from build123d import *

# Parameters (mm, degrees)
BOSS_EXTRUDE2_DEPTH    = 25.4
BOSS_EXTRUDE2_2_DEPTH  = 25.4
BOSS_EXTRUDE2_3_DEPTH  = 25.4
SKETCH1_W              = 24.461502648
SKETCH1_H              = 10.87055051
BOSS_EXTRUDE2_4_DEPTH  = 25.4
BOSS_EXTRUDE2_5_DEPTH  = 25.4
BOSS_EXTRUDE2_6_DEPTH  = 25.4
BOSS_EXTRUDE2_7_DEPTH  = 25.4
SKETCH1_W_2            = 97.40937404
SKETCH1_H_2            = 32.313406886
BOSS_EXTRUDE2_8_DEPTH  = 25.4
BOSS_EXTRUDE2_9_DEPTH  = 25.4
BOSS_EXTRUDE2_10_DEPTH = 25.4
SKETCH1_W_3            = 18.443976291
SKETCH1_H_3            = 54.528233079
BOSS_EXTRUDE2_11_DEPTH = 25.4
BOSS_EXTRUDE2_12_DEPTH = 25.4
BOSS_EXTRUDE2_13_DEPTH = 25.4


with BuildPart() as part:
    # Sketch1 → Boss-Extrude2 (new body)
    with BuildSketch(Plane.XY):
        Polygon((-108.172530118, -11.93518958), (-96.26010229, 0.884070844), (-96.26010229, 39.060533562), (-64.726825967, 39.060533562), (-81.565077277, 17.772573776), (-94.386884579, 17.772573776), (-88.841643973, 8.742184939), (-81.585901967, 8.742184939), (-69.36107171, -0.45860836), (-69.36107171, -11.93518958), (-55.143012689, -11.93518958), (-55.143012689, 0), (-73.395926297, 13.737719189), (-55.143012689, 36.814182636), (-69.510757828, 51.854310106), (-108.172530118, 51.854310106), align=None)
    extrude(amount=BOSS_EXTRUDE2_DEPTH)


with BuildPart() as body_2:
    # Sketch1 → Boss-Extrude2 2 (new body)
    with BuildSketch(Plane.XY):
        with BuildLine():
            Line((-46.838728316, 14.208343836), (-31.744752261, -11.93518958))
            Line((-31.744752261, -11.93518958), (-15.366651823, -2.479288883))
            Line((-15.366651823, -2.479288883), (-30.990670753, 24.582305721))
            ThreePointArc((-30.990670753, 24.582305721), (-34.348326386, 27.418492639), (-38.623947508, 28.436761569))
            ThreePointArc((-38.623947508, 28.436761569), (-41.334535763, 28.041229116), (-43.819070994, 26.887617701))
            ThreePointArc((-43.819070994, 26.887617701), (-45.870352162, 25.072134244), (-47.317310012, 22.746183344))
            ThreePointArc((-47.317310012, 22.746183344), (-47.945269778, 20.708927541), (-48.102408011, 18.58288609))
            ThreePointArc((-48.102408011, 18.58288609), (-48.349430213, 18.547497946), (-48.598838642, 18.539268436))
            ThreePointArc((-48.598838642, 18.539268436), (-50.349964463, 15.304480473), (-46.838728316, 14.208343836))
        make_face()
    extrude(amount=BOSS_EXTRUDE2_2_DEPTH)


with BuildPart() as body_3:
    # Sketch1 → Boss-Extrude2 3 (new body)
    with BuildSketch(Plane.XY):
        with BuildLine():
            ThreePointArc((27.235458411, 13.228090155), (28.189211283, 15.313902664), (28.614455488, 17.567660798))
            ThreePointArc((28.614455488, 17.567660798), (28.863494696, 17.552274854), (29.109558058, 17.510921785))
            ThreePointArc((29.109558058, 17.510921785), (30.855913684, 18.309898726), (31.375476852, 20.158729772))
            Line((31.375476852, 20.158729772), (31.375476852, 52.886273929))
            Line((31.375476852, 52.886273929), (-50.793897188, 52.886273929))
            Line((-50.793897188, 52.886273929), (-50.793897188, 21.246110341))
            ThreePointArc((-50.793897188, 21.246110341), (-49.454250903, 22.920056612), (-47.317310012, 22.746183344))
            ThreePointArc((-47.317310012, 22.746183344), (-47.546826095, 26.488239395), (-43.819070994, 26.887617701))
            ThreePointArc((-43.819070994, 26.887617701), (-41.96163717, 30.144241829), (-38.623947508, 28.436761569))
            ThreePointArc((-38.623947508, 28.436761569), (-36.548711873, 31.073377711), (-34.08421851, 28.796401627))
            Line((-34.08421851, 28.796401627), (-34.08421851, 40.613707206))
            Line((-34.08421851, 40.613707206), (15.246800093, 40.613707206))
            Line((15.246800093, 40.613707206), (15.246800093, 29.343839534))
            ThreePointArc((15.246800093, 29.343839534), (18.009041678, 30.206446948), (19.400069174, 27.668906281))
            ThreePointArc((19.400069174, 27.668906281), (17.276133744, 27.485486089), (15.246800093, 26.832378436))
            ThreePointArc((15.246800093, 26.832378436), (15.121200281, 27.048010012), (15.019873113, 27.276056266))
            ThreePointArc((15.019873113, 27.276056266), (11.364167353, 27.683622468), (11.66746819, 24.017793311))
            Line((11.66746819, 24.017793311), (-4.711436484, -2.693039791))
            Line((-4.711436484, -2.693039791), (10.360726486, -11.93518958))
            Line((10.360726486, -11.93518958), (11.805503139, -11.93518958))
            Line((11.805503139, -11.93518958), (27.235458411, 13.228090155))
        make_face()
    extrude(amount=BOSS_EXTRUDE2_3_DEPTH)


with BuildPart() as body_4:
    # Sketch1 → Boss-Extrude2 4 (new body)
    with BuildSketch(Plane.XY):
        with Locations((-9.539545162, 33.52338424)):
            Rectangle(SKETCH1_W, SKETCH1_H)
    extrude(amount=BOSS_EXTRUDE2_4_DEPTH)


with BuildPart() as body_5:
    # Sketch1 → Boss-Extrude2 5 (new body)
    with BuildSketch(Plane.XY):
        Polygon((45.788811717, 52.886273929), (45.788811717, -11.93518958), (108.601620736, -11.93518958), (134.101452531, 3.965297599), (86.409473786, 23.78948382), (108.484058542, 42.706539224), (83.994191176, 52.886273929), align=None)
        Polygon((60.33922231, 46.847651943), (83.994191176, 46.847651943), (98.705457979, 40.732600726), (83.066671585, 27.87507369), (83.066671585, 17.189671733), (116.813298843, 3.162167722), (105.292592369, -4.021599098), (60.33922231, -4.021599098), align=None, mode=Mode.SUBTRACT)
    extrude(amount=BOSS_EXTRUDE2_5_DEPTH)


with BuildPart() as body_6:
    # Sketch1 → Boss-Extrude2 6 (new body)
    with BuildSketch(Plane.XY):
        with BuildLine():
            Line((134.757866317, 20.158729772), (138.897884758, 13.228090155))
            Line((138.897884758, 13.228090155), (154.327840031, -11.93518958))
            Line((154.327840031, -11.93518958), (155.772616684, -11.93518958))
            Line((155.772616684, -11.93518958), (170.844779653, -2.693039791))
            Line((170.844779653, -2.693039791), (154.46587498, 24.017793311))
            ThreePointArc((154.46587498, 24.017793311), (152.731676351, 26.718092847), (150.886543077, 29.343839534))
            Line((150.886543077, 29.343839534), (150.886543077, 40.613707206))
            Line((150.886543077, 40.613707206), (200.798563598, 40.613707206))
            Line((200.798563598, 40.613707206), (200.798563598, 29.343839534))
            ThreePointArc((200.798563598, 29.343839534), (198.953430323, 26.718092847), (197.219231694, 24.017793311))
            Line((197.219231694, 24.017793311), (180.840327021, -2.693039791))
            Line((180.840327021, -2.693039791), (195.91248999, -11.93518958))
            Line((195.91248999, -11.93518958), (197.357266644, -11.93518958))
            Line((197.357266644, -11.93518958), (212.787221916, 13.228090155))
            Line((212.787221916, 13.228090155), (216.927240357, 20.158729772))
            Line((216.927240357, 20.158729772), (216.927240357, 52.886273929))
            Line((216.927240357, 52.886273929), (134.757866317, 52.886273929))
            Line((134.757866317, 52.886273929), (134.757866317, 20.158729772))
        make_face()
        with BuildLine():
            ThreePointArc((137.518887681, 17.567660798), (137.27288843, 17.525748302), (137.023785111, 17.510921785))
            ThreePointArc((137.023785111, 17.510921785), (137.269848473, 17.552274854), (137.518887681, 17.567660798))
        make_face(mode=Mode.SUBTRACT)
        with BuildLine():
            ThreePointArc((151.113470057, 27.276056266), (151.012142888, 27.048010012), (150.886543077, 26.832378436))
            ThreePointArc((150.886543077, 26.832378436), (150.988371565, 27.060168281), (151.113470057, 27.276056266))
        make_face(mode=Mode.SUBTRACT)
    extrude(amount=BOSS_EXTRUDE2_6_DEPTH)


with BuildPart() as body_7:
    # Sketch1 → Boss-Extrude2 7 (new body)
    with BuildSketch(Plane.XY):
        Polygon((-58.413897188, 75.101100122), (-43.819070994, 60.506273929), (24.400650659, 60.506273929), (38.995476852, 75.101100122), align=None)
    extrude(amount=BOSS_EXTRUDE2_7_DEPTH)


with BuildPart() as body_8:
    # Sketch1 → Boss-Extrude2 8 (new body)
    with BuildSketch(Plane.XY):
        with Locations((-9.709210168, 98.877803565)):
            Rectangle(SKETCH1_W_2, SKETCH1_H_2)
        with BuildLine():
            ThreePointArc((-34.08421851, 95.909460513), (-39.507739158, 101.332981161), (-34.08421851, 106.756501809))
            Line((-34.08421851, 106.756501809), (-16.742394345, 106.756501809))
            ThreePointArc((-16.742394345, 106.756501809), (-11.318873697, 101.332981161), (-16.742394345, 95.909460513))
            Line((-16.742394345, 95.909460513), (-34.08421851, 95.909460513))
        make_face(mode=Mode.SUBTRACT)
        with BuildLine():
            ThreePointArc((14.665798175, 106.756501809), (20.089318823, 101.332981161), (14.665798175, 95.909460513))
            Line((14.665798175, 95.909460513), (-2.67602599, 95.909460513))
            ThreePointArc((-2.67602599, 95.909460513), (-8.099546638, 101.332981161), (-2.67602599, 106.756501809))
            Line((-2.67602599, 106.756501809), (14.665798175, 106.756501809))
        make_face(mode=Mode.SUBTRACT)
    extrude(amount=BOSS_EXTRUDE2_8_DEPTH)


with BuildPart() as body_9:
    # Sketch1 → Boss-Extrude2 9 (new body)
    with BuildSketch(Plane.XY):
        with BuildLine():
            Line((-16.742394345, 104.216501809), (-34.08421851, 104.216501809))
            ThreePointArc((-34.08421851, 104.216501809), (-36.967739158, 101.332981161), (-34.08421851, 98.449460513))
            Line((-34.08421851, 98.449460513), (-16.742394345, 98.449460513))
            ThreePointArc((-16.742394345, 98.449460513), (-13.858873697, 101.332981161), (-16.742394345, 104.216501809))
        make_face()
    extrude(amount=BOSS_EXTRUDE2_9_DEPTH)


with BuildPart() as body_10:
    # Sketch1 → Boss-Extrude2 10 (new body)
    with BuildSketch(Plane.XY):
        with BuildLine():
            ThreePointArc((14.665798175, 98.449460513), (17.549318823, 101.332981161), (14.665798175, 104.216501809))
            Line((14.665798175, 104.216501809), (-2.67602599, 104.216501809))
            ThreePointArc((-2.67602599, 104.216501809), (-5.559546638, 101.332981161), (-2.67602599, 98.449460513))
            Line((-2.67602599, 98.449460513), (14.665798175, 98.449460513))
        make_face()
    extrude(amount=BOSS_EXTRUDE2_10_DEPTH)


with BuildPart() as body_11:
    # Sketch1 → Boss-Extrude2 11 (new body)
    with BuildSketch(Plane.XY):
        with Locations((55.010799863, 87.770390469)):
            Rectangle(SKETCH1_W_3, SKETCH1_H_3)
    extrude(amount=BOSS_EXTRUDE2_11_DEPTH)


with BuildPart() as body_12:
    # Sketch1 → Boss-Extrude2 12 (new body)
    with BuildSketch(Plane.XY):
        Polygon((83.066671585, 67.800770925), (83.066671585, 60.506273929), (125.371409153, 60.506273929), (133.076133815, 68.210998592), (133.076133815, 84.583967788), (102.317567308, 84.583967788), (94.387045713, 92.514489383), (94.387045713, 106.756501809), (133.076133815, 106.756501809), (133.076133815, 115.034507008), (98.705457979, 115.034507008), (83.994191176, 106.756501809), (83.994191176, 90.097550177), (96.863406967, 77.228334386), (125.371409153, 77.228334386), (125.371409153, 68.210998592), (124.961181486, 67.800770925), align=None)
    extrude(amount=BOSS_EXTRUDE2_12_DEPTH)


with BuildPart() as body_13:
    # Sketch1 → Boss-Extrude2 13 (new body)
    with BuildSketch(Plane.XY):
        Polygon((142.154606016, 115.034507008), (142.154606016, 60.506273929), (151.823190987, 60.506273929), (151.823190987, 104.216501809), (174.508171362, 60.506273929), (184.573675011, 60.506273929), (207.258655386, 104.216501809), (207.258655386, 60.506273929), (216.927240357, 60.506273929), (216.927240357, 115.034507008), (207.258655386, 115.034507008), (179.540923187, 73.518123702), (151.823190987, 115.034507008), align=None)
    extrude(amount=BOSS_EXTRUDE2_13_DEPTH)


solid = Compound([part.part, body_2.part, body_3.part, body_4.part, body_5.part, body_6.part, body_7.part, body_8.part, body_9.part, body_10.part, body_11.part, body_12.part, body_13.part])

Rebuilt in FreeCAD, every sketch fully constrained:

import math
import FreeCAD as App
import Part
import Sketcher
Q = App.Units.Quantity

doc = App.newDocument("Part")
body = doc.addObject("PartDesign::Body", "Body")

sketch1 = body.newObject("Sketcher::SketchObject", "Sketch")
sketch1.AttachmentSupport = (doc.getObject("XY_Plane"), [""])
sketch1.MapMode = "FlatFace"
sketch1.addGeometry([
    Part.LineSegment(App.Vector(-108, -12, 0), App.Vector(-96, 1, 0)),
    Part.LineSegment(App.Vector(-96, 1, 0), App.Vector(-96, 39, 0)),
    Part.LineSegment(App.Vector(-96, 39, 0), App.Vector(-65, 39, 0)),
    Part.LineSegment(App.Vector(-65, 39, 0), App.Vector(-82, 18, 0)),
    Part.LineSegment(App.Vector(-82, 18, 0), App.Vector(-94, 18, 0)),
    Part.LineSegment(App.Vector(-94, 18, 0), App.Vector(-89, 9, 0)),
    Part.LineSegment(App.Vector(-89, 9, 0), App.Vector(-82, 9, 0)),
    Part.LineSegment(App.Vector(-82, 9, 0), App.Vector(-69, 0, 0)),
    Part.LineSegment(App.Vector(-69, 0, 0), App.Vector(-69, -12, 0)),
    Part.LineSegment(App.Vector(-69, -12, 0), App.Vector(-55, -12, 0)),
    Part.LineSegment(App.Vector(-55, -12, 0), App.Vector(-55, 0, 0)),
    Part.LineSegment(App.Vector(-55, 0, 0), App.Vector(-73, 14, 0)),
    Part.LineSegment(App.Vector(-73, 14, 0), App.Vector(-55, 37, 0)),
    Part.LineSegment(App.Vector(-55, 37, 0), App.Vector(-70, 52, 0)),
    Part.LineSegment(App.Vector(-70, 52, 0), App.Vector(-108, 52, 0)),
    Part.LineSegment(App.Vector(-108, 52, 0), App.Vector(-108, -12, 0)),
], False)
sketch1.addConstraint([
    Sketcher.Constraint("Coincident", 0, 2, 1, 1),
    Sketcher.Constraint("Coincident", 1, 2, 2, 1),
    Sketcher.Constraint("Coincident", 2, 2, 3, 1),
    Sketcher.Constraint("Coincident", 3, 2, 4, 1),
    Sketcher.Constraint("Coincident", 4, 2, 5, 1),
    Sketcher.Constraint("Coincident", 5, 2, 6, 1),
    Sketcher.Constraint("Coincident", 6, 2, 7, 1),
    Sketcher.Constraint("Coincident", 7, 2, 8, 1),
    Sketcher.Constraint("Coincident", 8, 2, 9, 1),
    Sketcher.Constraint("Coincident", 9, 2, 10, 1),
    Sketcher.Constraint("Coincident", 10, 2, 11, 1),
    Sketcher.Constraint("Coincident", 11, 2, 12, 1),
    Sketcher.Constraint("Coincident", 12, 2, 13, 1),
    Sketcher.Constraint("Coincident", 13, 2, 14, 1),
    Sketcher.Constraint("Coincident", 14, 2, 15, 1),
    Sketcher.Constraint("Coincident", 15, 2, 0, 1),
    Sketcher.Constraint("Vertical", 1),
    Sketcher.Constraint("Horizontal", 2),
    Sketcher.Constraint("Horizontal", 4),
    Sketcher.Constraint("Horizontal", 6),
    Sketcher.Constraint("Vertical", 8),
    Sketcher.Constraint("Horizontal", 9),
    Sketcher.Constraint("Vertical", 10),
    Sketcher.Constraint("Horizontal", 14),
    Sketcher.Constraint("Vertical", 15),
    Sketcher.Constraint("PointOnObject", 10, 2, -1),
    Sketcher.Constraint("Parallel", 7, 11),
    Sketcher.Constraint("Parallel", 3, 12),
    Sketcher.Constraint("Horizontal", 9, 2, 15, 2),
    Sketcher.Constraint("Vertical", 10, 2, 12, 2),
    Sketcher.Constraint("DistanceY", 15, 2, 15, 1, Q("63.7895 mm")),
    Sketcher.Constraint("DistanceX", 9, 1, 9, 2, Q("14.218059 mm")),
    Sketcher.Constraint("DistanceY", 8, 2, 8, 1, Q("11.476581 mm")),
    Sketcher.Constraint("DistanceY", 10, 1, 10, 2, Q("11.93519 mm")),
    Sketcher.Constraint("DistanceX", 6, 2, -1, 1, Q("81.585902 mm")),
    Sketcher.Constraint("DistanceX", 0, 2, 6, 2, Q("14.6742 mm")),
    Sketcher.Constraint("Distance", 3, Q("27.142291 mm")),
    Sketcher.Constraint("Distance", 7, Q("15.300362 mm")),
    Sketcher.Constraint("Distance", 13, Q("20.799941 mm")),
    Sketcher.Constraint("DistanceX", 2, 1, 2, 2, Q("31.533276 mm")),
    Sketcher.Constraint("DistanceX", 4, 2, 4, 1, Q("12.821807 mm")),
    Sketcher.Constraint("DistanceX", 6, 1, 6, 2, Q("7.255742 mm")),
    Sketcher.Constraint("DistanceX", 14, 2, 14, 1, Q("38.661772 mm")),
    Sketcher.Constraint("DistanceY", 1, 1, 1, 2, Q("38.176463 mm")),
    Sketcher.Constraint("DistanceY", -1, 1, 0, 2, Q("0.884071 mm")),
    Sketcher.Constraint("DistanceX", 7, 2, -1, 1, Q("69.361072 mm")),
    Sketcher.Constraint("DistanceY", -1, 1, 11, 2, Q("13.737719 mm")),
    Sketcher.Constraint("DistanceX", 14, 2, -1, 1, Q("108.17253 mm")),
])
pad1 = body.newObject("PartDesign::Pad", "Pad")
pad1.Profile = sketch1
pad1.Length = Q("1 in")
body2 = doc.addObject("PartDesign::Body", "Body001")

sketch2 = body2.newObject("Sketcher::SketchObject", "Sketch001")
sketch2.AttachmentSupport = (doc.getObject("XY_Plane001"), [""])
sketch2.MapMode = "FlatFace"
sketch2.addGeometry([
    Part.LineSegment(App.Vector(-46.838728, 14.208344, 0), App.Vector(-31.744752, -11.93519, 0)),
    Part.LineSegment(App.Vector(-31.744752, -11.93519, 0), App.Vector(-15.366652, -2.479289, 0)),
    Part.LineSegment(App.Vector(-15.366652, -2.479289, 0), App.Vector(-30.990671, 24.582306, 0)),
    Part.ArcOfCircle(Part.Circle(App.Vector(-38.623948, 18.95115, 0), App.Vector(0, 0, 1), 9.485612), math.radians(36.416622), math.radians(90)),
    Part.ArcOfCircle(Part.Circle(App.Vector(-38.623948, 18.95115, 0), App.Vector(0, 0, 1), 9.485612), math.radians(90), math.radians(123.208311)),
    Part.ArcOfCircle(Part.Circle(App.Vector(-38.623948, 18.95115, 0), App.Vector(0, 0, 1), 9.485612), math.radians(123.208311), math.radians(156.416622)),
    Part.ArcOfCircle(Part.Circle(App.Vector(-38.623948, 18.95115, 0), App.Vector(0, 0, 1), 9.485612), math.radians(156.416622), math.radians(182.224976)),
    Part.ArcOfCircle(Part.Circle(App.Vector(-48.549348, 20.822842, 0), App.Vector(0, 0, 1), 2.28411), math.radians(-91.241553), math.radians(-78.715932)),
    Part.ArcOfCircle(Part.Circle(App.Vector(-48.143286, 16.201286, 0), App.Vector(0, 0, 1), 2.381951), math.radians(101.025851), math.radians(303.208311)),
], False)
sketch2.addConstraint([
    Sketcher.Constraint("Coincident", 0, 2, 1, 1),
    Sketcher.Constraint("Coincident", 1, 2, 2, 1),
    Sketcher.Constraint("Coincident", 2, 2, 3, 1),
    Sketcher.Constraint("Coincident", 3, 2, 4, 1),
    Sketcher.Constraint("Coincident", 4, 2, 5, 1),
    Sketcher.Constraint("Coincident", 5, 2, 6, 1),
    Sketcher.Constraint("Coincident", 6, 2, 7, 2),
    Sketcher.Constraint("Coincident", 7, 1, 8, 1),
    Sketcher.Constraint("Coincident", 8, 2, 0, 1),
    Sketcher.Constraint("Coincident", 4, 3, 3, 3),
    Sketcher.Constraint("Coincident", 5, 3, 3, 3),
    Sketcher.Constraint("Coincident", 6, 3, 3, 3),
    Sketcher.Constraint("Radius", 3, Q("9.485612 mm")),
    Sketcher.Constraint("Radius", 7, Q("2.28411 mm")),
    Sketcher.Constraint("Radius", 8, Q("2.381951 mm")),
    Sketcher.Constraint("Distance", 1, Q("18.911801 mm")),
    Sketcher.Constraint("DistanceX", 7, 3, 6, 3, Q("9.9254 mm")),
    Sketcher.Constraint("DistanceX", 0, 2, 1, 2, Q("16.3781 mm")),
    Sketcher.Constraint("DistanceY", 8, 3, 6, 2, Q("2.3816 mm")),
    Sketcher.Constraint("DistanceY", 8, 2, 7, 3, Q("6.614498 mm")),
    Sketcher.Constraint("DistanceY", -1, 1, 3, 3, Q("18.95115 mm")),
    Sketcher.Constraint("DistanceY", 0, 2, -1, 1, Q("11.93519 mm")),
    Sketcher.Constraint("DistanceX", 1, 2, -1, 1, Q("15.366652 mm")),
    Sketcher.Constraint("DistanceX", 2, 2, -1, 1, Q("30.990671 mm")),
    Sketcher.Constraint("DistanceX", 4, 2, -1, 1, Q("43.819071 mm")),
    Sketcher.Constraint("DistanceX", 5, 2, -1, 1, Q("47.31731 mm")),
    Sketcher.Constraint("DistanceX", 6, 2, -1, 1, Q("48.102408 mm")),
    Sketcher.Constraint("DistanceX", 7, 1, -1, 1, Q("48.598839 mm")),
    Sketcher.Constraint("DistanceY", -1, 1, 7, 1, Q("18.539268 mm")),
    Sketcher.Constraint("DistanceX", 3, 2, -1, 1, Q("38.623948 mm")),
])
pad2 = body2.newObject("PartDesign::Pad", "Pad001")
pad2.Profile = sketch2
pad2.Length = Q("1 in")
body3 = doc.addObject("PartDesign::Body", "Body002")

sketch3 = body3.newObject("Sketcher::SketchObject", "Sketch002")
sketch3.AttachmentSupport = (doc.getObject("XY_Plane002"), [""])
sketch3.MapMode = "FlatFace"
sketch3.addGeometry([
    Part.ArcOfCircle(Part.Circle(App.Vector(19.149059, 18.186616, 0), App.Vector(0, 0, 1), 9.485612), math.radians(-31.516348), math.radians(-3.741324)),
    Part.ArcOfCircle(Part.Circle(App.Vector(28.592297, 15.185813, 0), App.Vector(0, 0, 1), 2.381951), math.radians(77.457801), math.radians(89.466987)),
    Part.ArcOfCircle(Part.Circle(App.Vector(29.120513, 19.795005, 0), App.Vector(0, 0, 1), 2.28411), math.radians(-90.274795), math.radians(9.162853)),
    Part.LineSegment(App.Vector(31.375477, 20.15873, 0), App.Vector(31.375477, 52.886274, 0)),
    Part.LineSegment(App.Vector(31.375477, 52.886274, 0), App.Vector(-50.793897, 52.886274, 0)),
    Part.LineSegment(App.Vector(-50.793897, 52.886274, 0), App.Vector(-50.793897, 21.24611, 0)),
    Part.ArcOfCircle(Part.Circle(App.Vector(-48.549348, 20.822842, 0), App.Vector(0, 0, 1), 2.28411), math.radians(57.35753), math.radians(169.320799)),
    Part.ArcOfCircle(Part.Circle(App.Vector(-45.473966, 24.73731, 0), App.Vector(0, 0, 1), 2.713393), math.radians(52.41781), math.radians(227.207123)),
    Part.ArcOfCircle(Part.Circle(App.Vector(-41.186264, 27.543992, 0), App.Vector(0, 0, 1), 2.713393), math.radians(19.209499), math.radians(193.998812)),
    Part.ArcOfCircle(Part.Circle(App.Vector(-36.368328, 28.796402, 0), App.Vector(0, 0, 1), 2.28411), math.radians(0), math.radians(189.059092)),
    Part.LineSegment(App.Vector(-34.084219, 28.796402, 0), App.Vector(-34.084219, 40.613707, 0)),
    Part.LineSegment(App.Vector(-34.084219, 40.613707, 0), App.Vector(15.2468, 40.613707, 0)),
    Part.LineSegment(App.Vector(15.2468, 40.613707, 0), App.Vector(15.2468, 29.34384, 0)),
    Part.ArcOfCircle(Part.Circle(App.Vector(17.154757, 28.088109, 0), App.Vector(0, 0, 1), 2.28411), math.radians(-10.57544), math.radians(146.648902)),
    Part.ArcOfCircle(Part.Circle(App.Vector(19.149059, 18.186616, 0), App.Vector(0, 0, 1), 9.485612), math.radians(88.483652), math.radians(114.292006)),
    Part.ArcOfCircle(Part.Circle(App.Vector(17.154757, 28.088109, 0), App.Vector(0, 0, 1), 2.28411), math.radians(-159.174523), math.radians(-146.648902)),
    Part.ArcOfCircle(Part.Circle(App.Vector(13.024307, 25.975516, 0), App.Vector(0, 0, 1), 2.381951), math.radians(33.092881), math.radians(235.275341)),
    Part.LineSegment(App.Vector(11.667468, 24.017793, 0), App.Vector(-4.711436, -2.69304, 0)),
    Part.LineSegment(App.Vector(-4.711436, -2.69304, 0), App.Vector(10.360726, -11.93519, 0)),
    Part.LineSegment(App.Vector(10.360726, -11.93519, 0), App.Vector(11.805503, -11.93519, 0)),
    Part.LineSegment(App.Vector(11.805503, -11.93519, 0), App.Vector(27.235458, 13.22809, 0)),
], False)
sketch3.addConstraint([
    Sketcher.Constraint("Coincident", 0, 2, 1, 2),
    Sketcher.Constraint("Coincident", 1, 1, 2, 1),
    Sketcher.Constraint("Coincident", 2, 2, 3, 1),
    Sketcher.Constraint("Coincident", 3, 2, 4, 1),
    Sketcher.Constraint("Coincident", 4, 2, 5, 1),
    Sketcher.Constraint("Coincident", 5, 2, 6, 2),
    Sketcher.Constraint("Coincident", 6, 1, 7, 2),
    Sketcher.Constraint("Coincident", 7, 1, 8, 2),
    Sketcher.Constraint("Coincident", 8, 1, 9, 2),
    Sketcher.Constraint("Coincident", 9, 1, 10, 1),
    Sketcher.Constraint("Coincident", 10, 2, 11, 1),
    Sketcher.Constraint("Coincident", 11, 2, 12, 1),
    Sketcher.Constraint("Coincident", 12, 2, 13, 2),
    Sketcher.Constraint("Coincident", 13, 1, 14, 1),
    Sketcher.Constraint("Coincident", 14, 2, 15, 2),
    Sketcher.Constraint("Coincident", 15, 1, 16, 1),
    Sketcher.Constraint("Coincident", 16, 2, 17, 1),
    Sketcher.Constraint("Coincident", 17, 2, 18, 1),
    Sketcher.Constraint("Coincident", 18, 2, 19, 1),
    Sketcher.Constraint("Coincident", 19, 2, 20, 1),
    Sketcher.Constraint("Coincident", 20, 2, 0, 1),
    Sketcher.Constraint("Vertical", 3),
    Sketcher.Constraint("Horizontal", 4),
    Sketcher.Constraint("Vertical", 5),
    Sketcher.Constraint("Vertical", 10),
    Sketcher.Constraint("Horizontal", 11),
    Sketcher.Constraint("Vertical", 12),
    Sketcher.Constraint("Horizontal", 19),
    Sketcher.Constraint("Coincident", 14, 3, 0, 3),
    Sketcher.Constraint("Coincident", 15, 3, 13, 3),
    Sketcher.Constraint("Radius", 0, Q("9.485612 mm")),
    Sketcher.Constraint("Radius", 1, Q("2.381951 mm")),
    Sketcher.Constraint("Radius", 2, Q("2.28411 mm")),
    Sketcher.Constraint("Radius", 6, Q("2.28411 mm")),
    Sketcher.Constraint("Radius", 9, Q("2.28411 mm")),
    Sketcher.Constraint("Radius", 13, Q("2.28411 mm")),
    Sketcher.Constraint("Radius", 14, Q("9.485612 mm")),
    Sketcher.Constraint("Radius", 15, Q("2.28411 mm")),
    Sketcher.Constraint("Radius", 16, Q("2.381951 mm")),
    Sketcher.Constraint("DistanceX", -1, 1, 0, 3, Q("0.7539 in")),
    Sketcher.Constraint("Radius", 7, Q("2.713393 mm")),
    Sketcher.Constraint("Radius", 8, Q("2.713393 mm")),
    Sketcher.Constraint("DistanceY", 2, 3, 13, 3, Q("0.3265001 in")),
    Sketcher.Constraint("DistanceX", 11, 1, 11, 2, Q("49.331019 mm")),
    Sketcher.Constraint("DistanceY", -1, 1, 9, 3, Q("28.796402 mm")),
    Sketcher.Constraint("DistanceY", -1, 1, 9, 1, Q("28.796402 mm")),
    Sketcher.Constraint("DistanceX", -1, 1, 11, 2, Q("15.2468 mm")),
    Sketcher.Constraint("DistanceX", -1, 1, 14, 2, Q("15.2468 mm")),
    Sketcher.Constraint("DistanceY", 14, 3, 16, 3, Q("7.7889 mm")),
    Sketcher.Constraint("DistanceX", 15, 3, 0, 2, Q("11.459699 mm")),
    Sketcher.Constraint("DistanceX", 0, 3, 1, 1, Q("9.960499 mm")),
    Sketcher.Constraint("DistanceY", 5, 2, 7, 3, Q("3.4912 mm")),
    Sketcher.Constraint("DistanceY", 15, 3, 11, 2, Q("12.525598 mm")),
    Sketcher.Constraint("DistanceX", 20, 2, 1, 1, Q("1.8741 mm")),
    Sketcher.Constraint("DistanceX", 4, 2, 4, 1, Q("82.169374 mm")),
    Sketcher.Constraint("DistanceX", 19, 1, 19, 2, Q("1.444777 mm")),
    Sketcher.Constraint("DistanceY", 3, 1, 3, 2, Q("32.727544 mm")),
    Sketcher.Constraint("DistanceY", 5, 2, 5, 1, Q("31.640164 mm")),
    Sketcher.Constraint("DistanceY", 10, 1, 10, 2, Q("11.817306 mm")),
    Sketcher.Constraint("DistanceY", 12, 2, 12, 1, Q("11.269868 mm")),
    Sketcher.Constraint("DistanceY", -1, 1, 7, 3, Q("24.73731 mm")),
    Sketcher.Constraint("DistanceX", 6, 1, -1, 1, Q("47.31731 mm")),
    Sketcher.Constraint("DistanceX", 7, 1, -1, 1, Q("43.819071 mm")),
    Sketcher.Constraint("DistanceY", -1, 1, 8, 1, Q("28.436762 mm")),
    Sketcher.Constraint("DistanceX", -1, 1, 16, 2, Q("11.667468 mm")),
    Sketcher.Constraint("DistanceY", 17, 2, -1, 1, Q("2.69304 mm")),
    Sketcher.Constraint("DistanceY", 18, 2, -1, 1, Q("11.93519 mm")),
    Sketcher.Constraint("DistanceY", 1, 3, 6, 3, Q("5.637029 mm")),
    Sketcher.Constraint("DistanceX", 6, 3, 7, 3, Q("3.075381 mm")),
    Sketcher.Constraint("DistanceX", 16, 3, 13, 3, Q("4.13045 mm")),
    Sketcher.Constraint("DistanceX", 18, 2, 1, 3, Q("18.23157 mm")),
    Sketcher.Constraint("DistanceX", 17, 2, 19, 2, Q("16.51694 mm")),
])
pad3 = body3.newObject("PartDesign::Pad", "Pad002")
pad3.Profile = sketch3
pad3.Length = Q("1 in")
body4 = doc.addObject("PartDesign::Body", "Body003")

sketch4 = body4.newObject("Sketcher::SketchObject", "Sketch003")
sketch4.AttachmentSupport = (doc.getObject("XY_Plane003"), [""])
sketch4.MapMode = "FlatFace"
sketch4.addGeometry([
    Part.LineSegment(App.Vector(-22, 39, 0), App.Vector(-22, 28, 0)),
    Part.LineSegment(App.Vector(-22, 28, 0), App.Vector(3, 28, 0)),
    Part.LineSegment(App.Vector(3, 28, 0), App.Vector(3, 39, 0)),
    Part.LineSegment(App.Vector(3, 39, 0), App.Vector(-22, 39, 0)),
], False)
sketch4.addConstraint([
    Sketcher.Constraint("Coincident", 0, 2, 1, 1),
    Sketcher.Constraint("Coincident", 1, 2, 2, 1),
    Sketcher.Constraint("Coincident", 2, 2, 3, 1),
    Sketcher.Constraint("Coincident", 3, 2, 0, 1),
    Sketcher.Constraint("Vertical", 0),
    Sketcher.Constraint("Horizontal", 1),
    Sketcher.Constraint("Vertical", 2),
    Sketcher.Constraint("Horizontal", 3),
    Sketcher.Constraint("DistanceY", 0, 2, 0, 1, Q("10.870551 mm")),
    Sketcher.Constraint("DistanceX", 1, 1, 1, 2, Q("24.461503 mm")),
    Sketcher.Constraint("DistanceY", -1, 1, 0, 2, Q("28.088109 mm")),
    Sketcher.Constraint("DistanceX", 0, 2, -1, 1, Q("21.770296 mm")),
])
pad4 = body4.newObject("PartDesign::Pad", "Pad003")
pad4.Profile = sketch4
pad4.Length = Q("1 in")
body5 = doc.addObject("PartDesign::Body", "Body004")

sketch5 = body5.newObject("Sketcher::SketchObject", "Sketch004")
sketch5.AttachmentSupport = (doc.getObject("XY_Plane004"), [""])
sketch5.MapMode = "FlatFace"
sketch5.addGeometry([
    Part.LineSegment(App.Vector(46, 53, 0), App.Vector(46, -12, 0)),
    Part.LineSegment(App.Vector(46, -12, 0), App.Vector(109, -12, 0)),
    Part.LineSegment(App.Vector(109, -12, 0), App.Vector(134, 4, 0)),
    Part.LineSegment(App.Vector(134, 4, 0), App.Vector(86, 24, 0)),
    Part.LineSegment(App.Vector(86, 24, 0), App.Vector(108, 43, 0)),
    Part.LineSegment(App.Vector(108, 43, 0), App.Vector(84, 53, 0)),
    Part.LineSegment(App.Vector(84, 53, 0), App.Vector(46, 53, 0)),
    Part.LineSegment(App.Vector(60, -4, 0), App.Vector(60, 47, 0)),
    Part.LineSegment(App.Vector(60, 47, 0), App.Vector(84, 47, 0)),
    Part.LineSegment(App.Vector(84, 47, 0), App.Vector(99, 41, 0)),
    Part.LineSegment(App.Vector(99, 41, 0), App.Vector(83, 28, 0)),
    Part.LineSegment(App.Vector(83, 28, 0), App.Vector(83, 17, 0)),
    Part.LineSegment(App.Vector(83, 17, 0), App.Vector(117, 3, 0)),
    Part.LineSegment(App.Vector(117, 3, 0), App.Vector(105, -4, 0)),
    Part.LineSegment(App.Vector(105, -4, 0), App.Vector(60, -4, 0)),
], False)
sketch5.addConstraint([
    Sketcher.Constraint("Coincident", 0, 2, 1, 1),
    Sketcher.Constraint("Coincident", 1, 2, 2, 1),
    Sketcher.Constraint("Coincident", 2, 2, 3, 1),
    Sketcher.Constraint("Coincident", 3, 2, 4, 1),
    Sketcher.Constraint("Coincident", 4, 2, 5, 1),
    Sketcher.Constraint("Coincident", 5, 2, 6, 1),
    Sketcher.Constraint("Coincident", 6, 2, 0, 1),
    Sketcher.Constraint("Coincident", 7, 2, 8, 1),
    Sketcher.Constraint("Coincident", 8, 2, 9, 1),
    Sketcher.Constraint("Coincident", 9, 2, 10, 1),
    Sketcher.Constraint("Coincident", 10, 2, 11, 1),
    Sketcher.Constraint("Coincident", 11, 2, 12, 1),
    Sketcher.Constraint("Coincident", 12, 2, 13, 1),
    Sketcher.Constraint("Coincident", 13, 2, 14, 1),
    Sketcher.Constraint("Coincident", 14, 2, 7, 1),
    Sketcher.Constraint("Vertical", 0),
    Sketcher.Constraint("Horizontal", 1),
    Sketcher.Constraint("Horizontal", 6),
    Sketcher.Constraint("Vertical", 7),
    Sketcher.Constraint("Horizontal", 8),
    Sketcher.Constraint("Vertical", 11),
    Sketcher.Constraint("Horizontal", 14),
    Sketcher.Constraint("Parallel", 3, 5),
    Sketcher.Constraint("Parallel", 5, 9),
    Sketcher.Constraint("Parallel", 9, 12),
    Sketcher.Constraint("Parallel", 2, 13),
    Sketcher.Constraint("Vertical", 5, 2, 8, 2),
    Sketcher.Constraint("DistanceY", 11, 2, 11, 1, Q("10.685402 mm")),
    Sketcher.Constraint("DistanceX", 1, 1, 1, 2, Q("62.812809 mm")),
    Sketcher.Constraint("DistanceX", 6, 2, 6, 1, Q("38.205379 mm")),
    Sketcher.Constraint("DistanceX", 8, 1, 8, 2, Q("23.654969 mm")),
    Sketcher.Constraint("DistanceX", 14, 2, 14, 1, Q("44.95337 mm")),
    Sketcher.Constraint("DistanceY", 7, 1, 7, 2, Q("50.869251 mm")),
    Sketcher.Constraint("DistanceY", -1, 1, 9, 2, Q("40.732601 mm")),
    Sketcher.Constraint("DistanceX", -1, 1, 12, 2, Q("116.813299 mm")),
    Sketcher.Constraint("DistanceY", 13, 2, -1, 1, Q("4.021599 mm")),
    Sketcher.Constraint("DistanceX", 9, 2, 4, 2, Q("9.778601 mm")),
    Sketcher.Constraint("DistanceY", 10, 2, 5, 2, Q("25.0112 mm")),
    Sketcher.Constraint("Distance", 2, Q("30.051072 mm")),
    Sketcher.Constraint("Distance", 3, Q("51.648071 mm")),
    Sketcher.Constraint("Distance", 4, Q("29.071331 mm")),
    Sketcher.Constraint("Distance", 9, Q("15.931579 mm")),
    Sketcher.Constraint("Distance", 12, Q("36.54594 mm")),
    Sketcher.Constraint("DistanceY", 0, 2, 0, 1, Q("64.821464 mm")),
    Sketcher.Constraint("DistanceX", -1, 1, 0, 2, Q("45.788812 mm")),
])
pad5 = body5.newObject("PartDesign::Pad", "Pad004")
pad5.Profile = sketch5
pad5.Length = Q("1 in")
body6 = doc.addObject("PartDesign::Body", "Body005")

sketch6 = body6.newObject("Sketcher::SketchObject", "Sketch005")
sketch6.AttachmentSupport = (doc.getObject("XY_Plane005"), [""])
sketch6.MapMode = "FlatFace"
sketch6.addGeometry([
    Part.LineSegment(App.Vector(134.757866, 20.15873, 0), App.Vector(138.897885, 13.22809, 0)),
    Part.LineSegment(App.Vector(138.897885, 13.22809, 0), App.Vector(154.32784, -11.93519, 0)),
    Part.LineSegment(App.Vector(154.32784, -11.93519, 0), App.Vector(155.772617, -11.93519, 0)),
    Part.LineSegment(App.Vector(155.772617, -11.93519, 0), App.Vector(170.84478, -2.69304, 0)),
    Part.LineSegment(App.Vector(170.84478, -2.69304, 0), App.Vector(154.465875, 24.017793, 0)),
    Part.ArcOfCircle(Part.Circle(App.Vector(88.777186, -16.262073, 0), App.Vector(0, 0, 1), 77.05499), math.radians(31.516348), math.radians(36.289245)),
    Part.LineSegment(App.Vector(150.886543, 29.34384, 0), App.Vector(150.886543, 40.613707, 0)),
    Part.LineSegment(App.Vector(150.886543, 40.613707, 0), App.Vector(200.798564, 40.613707, 0)),
    Part.LineSegment(App.Vector(200.798564, 40.613707, 0), App.Vector(200.798564, 29.34384, 0)),
    Part.ArcOfCircle(Part.Circle(App.Vector(262.90792, -16.262072, 0), App.Vector(0, 0, 1), 77.054989), math.radians(143.710755), math.radians(148.483652)),
    Part.LineSegment(App.Vector(197.219232, 24.017793, 0), App.Vector(180.840327, -2.69304, 0)),
    Part.LineSegment(App.Vector(180.840327, -2.69304, 0), App.Vector(195.91249, -11.93519, 0)),
    Part.LineSegment(App.Vector(195.91249, -11.93519, 0), App.Vector(197.357267, -11.93519, 0)),
    Part.LineSegment(App.Vector(197.357267, -11.93519, 0), App.Vector(212.787222, 13.22809, 0)),
    Part.LineSegment(App.Vector(212.787222, 13.22809, 0), App.Vector(216.92724, 20.15873, 0)),
    Part.LineSegment(App.Vector(216.92724, 20.15873, 0), App.Vector(216.92724, 52.886274, 0)),
    Part.LineSegment(App.Vector(216.92724, 52.886274, 0), App.Vector(134.757866, 52.886274, 0)),
    Part.LineSegment(App.Vector(134.757866, 52.886274, 0), App.Vector(134.757866, 20.15873, 0)),
    Part.ArcOfCircle(Part.Circle(App.Vector(137.541046, 15.185813, 0), App.Vector(0, 0, 1), 2.381951), math.radians(90.533013), math.radians(102.542199)),
    Part.ArcOfCircle(Part.Circle(App.Vector(137.01283, 19.795005, 0), App.Vector(0, 0, 1), 2.28411), math.radians(-89.725205), math.radians(-77.199584)),
    Part.ArcOfCircle(Part.Circle(App.Vector(153.109036, 25.975516, 0), App.Vector(0, 0, 1), 2.381951), math.radians(146.907119), math.radians(158.916306)),
    Part.ArcOfCircle(Part.Circle(App.Vector(148.978586, 28.088109, 0), App.Vector(0, 0, 1), 2.28411), math.radians(-33.351097), math.radians(-20.825477)),
], False)
sketch6.addConstraint([
    Sketcher.Constraint("Coincident", 0, 2, 1, 1),
    Sketcher.Constraint("Coincident", 1, 2, 2, 1),
    Sketcher.Constraint("Coincident", 2, 2, 3, 1),
    Sketcher.Constraint("Coincident", 3, 2, 4, 1),
    Sketcher.Constraint("Coincident", 4, 2, 5, 1),
    Sketcher.Constraint("Coincident", 5, 2, 6, 1),
    Sketcher.Constraint("Coincident", 6, 2, 7, 1),
    Sketcher.Constraint("Coincident", 7, 2, 8, 1),
    Sketcher.Constraint("Coincident", 8, 2, 9, 1),
    Sketcher.Constraint("Coincident", 9, 2, 10, 1),
    Sketcher.Constraint("Coincident", 10, 2, 11, 1),
    Sketcher.Constraint("Coincident", 11, 2, 12, 1),
    Sketcher.Constraint("Coincident", 12, 2, 13, 1),
    Sketcher.Constraint("Coincident", 13, 2, 14, 1),
    Sketcher.Constraint("Coincident", 14, 2, 15, 1),
    Sketcher.Constraint("Coincident", 15, 2, 16, 1),
    Sketcher.Constraint("Coincident", 16, 2, 17, 1),
    Sketcher.Constraint("Coincident", 17, 2, 0, 1),
    Sketcher.Constraint("Coincident", 18, 1, 19, 2),
    Sketcher.Constraint("Coincident", 19, 1, 18, 2),
    Sketcher.Constraint("Coincident", 20, 1, 21, 2),
    Sketcher.Constraint("Coincident", 21, 1, 20, 2),
    Sketcher.Constraint("Horizontal", 2),
    Sketcher.Constraint("Vertical", 6),
    Sketcher.Constraint("Horizontal", 7),
    Sketcher.Constraint("Vertical", 8),
    Sketcher.Constraint("Horizontal", 12),
    Sketcher.Constraint("Vertical", 15),
    Sketcher.Constraint("Horizontal", 16),
    Sketcher.Constraint("Vertical", 17),
    Sketcher.Constraint("Radius", 5, Q("77.05499 mm")),
    Sketcher.Constraint("Radius", 9, Q("77.054989 mm")),
    Sketcher.Constraint("Radius", 18, Q("2.381951 mm")),
    Sketcher.Constraint("Radius", 19, Q("2.28411 mm")),
    Sketcher.Constraint("Radius", 20, Q("2.381951 mm")),
    Sketcher.Constraint("Radius", 21, Q("2.28411 mm")),
    Sketcher.Constraint("DistanceY", 19, 3, 21, 3, Q("0.3265001 in")),
    Sketcher.Constraint("DistanceX", 7, 1, 7, 2, Q("49.912021 mm")),
    Sketcher.Constraint("DistanceX", 5, 3, 21, 3, Q("60.2014 mm")),
    Sketcher.Constraint("DistanceX", 0, 2, 21, 3, Q("10.080701 mm")),
    Sketcher.Constraint("DistanceY", 1, 2, 21, 3, Q("40.023299 mm")),
    Sketcher.Constraint("DistanceY", 21, 3, 6, 2, Q("12.525598 mm")),
    Sketcher.Constraint("DistanceX", 18, 1, 21, 3, Q("11.459698 mm")),
    Sketcher.Constraint("DistanceX", 19, 1, 0, 2, Q("1.8741 mm")),
    Sketcher.Constraint("Distance", 0, Q("8.073012 mm")),
    Sketcher.Constraint("Distance", 14, Q("8.073012 mm")),
    Sketcher.Constraint("DistanceX", 2, 1, 2, 2, Q("1.444777 mm")),
    Sketcher.Constraint("DistanceX", 12, 1, 12, 2, Q("1.444777 mm")),
    Sketcher.Constraint("DistanceX", 16, 2, 16, 1, Q("82.169374 mm")),
    Sketcher.Constraint("DistanceY", 6, 1, 6, 2, Q("11.269868 mm")),
    Sketcher.Constraint("DistanceY", 8, 2, 8, 1, Q("11.269868 mm")),
    Sketcher.Constraint("DistanceY", 15, 1, 15, 2, Q("32.727544 mm")),
    Sketcher.Constraint("DistanceY", 17, 2, 17, 1, Q("32.727544 mm")),
    Sketcher.Constraint("DistanceX", -1, 1, 9, 3, Q("262.90792 mm")),
    Sketcher.Constraint("DistanceX", -1, 1, 19, 3, Q("137.01283 mm")),
    Sketcher.Constraint("DistanceY", -1, 1, 21, 3, Q("28.088109 mm")),
    Sketcher.Constraint("DistanceY", -1, 1, 0, 2, Q("13.22809 mm")),
    Sketcher.Constraint("DistanceX", -1, 1, 1, 2, Q("154.32784 mm")),
    Sketcher.Constraint("DistanceX", -1, 1, 3, 2, Q("170.84478 mm")),
    Sketcher.Constraint("DistanceY", 3, 2, -1, 1, Q("2.69304 mm")),
    Sketcher.Constraint("DistanceX", -1, 1, 9, 2, Q("197.219232 mm")),
    Sketcher.Constraint("DistanceY", 10, 2, -1, 1, Q("2.69304 mm")),
    Sketcher.Constraint("DistanceX", -1, 1, 11, 2, Q("195.91249 mm")),
    Sketcher.Constraint("DistanceY", 11, 2, -1, 1, Q("11.93519 mm")),
    Sketcher.Constraint("DistanceX", -1, 1, 13, 2, Q("212.787222 mm")),
    Sketcher.Constraint("DistanceY", -1, 1, 13, 2, Q("13.22809 mm")),
    Sketcher.Constraint("DistanceX", -1, 1, 14, 2, Q("216.92724 mm")),
    Sketcher.Constraint("DistanceX", -1, 1, 20, 1, Q("151.11347 mm")),
    Sketcher.Constraint("DistanceY", -1, 1, 21, 1, Q("26.832378 mm")),
    Sketcher.Constraint("DistanceY", 5, 3, 19, 3, Q("36.057078 mm")),
    Sketcher.Constraint("DistanceX", 20, 3, 4, 2, Q("1.356839 mm")),
    Sketcher.Constraint("DistanceX", 2, 2, 10, 2, Q("25.06771 mm")),
])
pad6 = body6.newObject("PartDesign::Pad", "Pad005")
pad6.Profile = sketch6
pad6.Length = Q("1 in")
body7 = doc.addObject("PartDesign::Body", "Body006")

sketch7 = body7.newObject("Sketcher::SketchObject", "Sketch006")
sketch7.AttachmentSupport = (doc.getObject("XY_Plane006"), [""])
sketch7.MapMode = "FlatFace"
sketch7.addGeometry([
    Part.LineSegment(App.Vector(-58, 75, 0), App.Vector(-44, 61, 0)),
    Part.LineSegment(App.Vector(-44, 61, 0), App.Vector(24, 61, 0)),
    Part.LineSegment(App.Vector(24, 61, 0), App.Vector(39, 75, 0)),
    Part.LineSegment(App.Vector(39, 75, 0), App.Vector(-58, 75, 0)),
], False)
sketch7.addConstraint([
    Sketcher.Constraint("Coincident", 0, 2, 1, 1),
    Sketcher.Constraint("Coincident", 1, 2, 2, 1),
    Sketcher.Constraint("Coincident", 2, 2, 3, 1),
    Sketcher.Constraint("Coincident", 3, 2, 0, 1),
    Sketcher.Constraint("Horizontal", 1),
    Sketcher.Constraint("Horizontal", 3),
    Sketcher.Constraint("Perpendicular", 0, 2),
    Sketcher.Constraint("Equal", 0, 2),
    Sketcher.Constraint("Distance", 0, Q("20.640201 mm")),
    Sketcher.Constraint("DistanceX", 1, 1, 1, 2, Q("68.219722 mm")),
    Sketcher.Constraint("DistanceY", -1, 1, 2, 2, Q("75.1011 mm")),
    Sketcher.Constraint("DistanceX", 0, 2, -1, 1, Q("43.819071 mm")),
])
pad7 = body7.newObject("PartDesign::Pad", "Pad006")
pad7.Profile = sketch7
pad7.Length = Q("1 in")
body8 = doc.addObject("PartDesign::Body", "Body007")

sketch8 = body8.newObject("Sketcher::SketchObject", "Sketch007")
sketch8.AttachmentSupport = (doc.getObject("XY_Plane007"), [""])
sketch8.MapMode = "FlatFace"
sketch8.addGeometry([
    Part.LineSegment(App.Vector(-58, 115, 0), App.Vector(-58, 83, 0)),
    Part.LineSegment(App.Vector(-58, 83, 0), App.Vector(39, 83, 0)),
    Part.LineSegment(App.Vector(39, 83, 0), App.Vector(39, 115, 0)),
    Part.LineSegment(App.Vector(39, 115, 0), App.Vector(-58, 115, 0)),
    Part.LineSegment(App.Vector(-17, 96, 0), App.Vector(-34, 96, 0)),
    Part.ArcOfCircle(Part.Circle(App.Vector(-34, 101, 0), App.Vector(0, 0, 1), 5), math.radians(90), math.radians(270)),
    Part.LineSegment(App.Vector(-34, 107, 0), App.Vector(-17, 107, 0)),
    Part.ArcOfCircle(Part.Circle(App.Vector(-17, 101, 0), App.Vector(0, 0, 1), 5), math.radians(-90), math.radians(90)),
    Part.LineSegment(App.Vector(-3, 107, 0), App.Vector(15, 107, 0)),
    Part.ArcOfCircle(Part.Circle(App.Vector(15, 101, 0), App.Vector(0, 0, 1), 5), math.radians(-90), math.radians(90)),
    Part.LineSegment(App.Vector(15, 96, 0), App.Vector(-3, 96, 0)),
    Part.ArcOfCircle(Part.Circle(App.Vector(-3, 101, 0), App.Vector(0, 0, 1), 5), math.radians(90), math.radians(270)),
], False)
sketch8.addConstraint([
    Sketcher.Constraint("Coincident", 0, 2, 1, 1),
    Sketcher.Constraint("Coincident", 1, 2, 2, 1),
    Sketcher.Constraint("Coincident", 2, 2, 3, 1),
    Sketcher.Constraint("Coincident", 3, 2, 0, 1),
    Sketcher.Constraint("Tangent", 4, 2, 5, 2),
    Sketcher.Constraint("Tangent", 5, 1, 6, 1),
    Sketcher.Constraint("Tangent", 6, 2, 7, 2),
    Sketcher.Constraint("Tangent", 7, 1, 4, 1),
    Sketcher.Constraint("Tangent", 8, 2, 9, 2),
    Sketcher.Constraint("Tangent", 9, 1, 10, 1),
    Sketcher.Constraint("Tangent", 10, 2, 11, 2),
    Sketcher.Constraint("Tangent", 11, 1, 8, 1),
    Sketcher.Constraint("Vertical", 0),
    Sketcher.Constraint("Horizontal", 1),
    Sketcher.Constraint("Vertical", 2),
    Sketcher.Constraint("Horizontal", 3),
    Sketcher.Constraint("Horizontal", 4),
    Sketcher.Constraint("Horizontal", 6),
    Sketcher.Constraint("Horizontal", 8),
    Sketcher.Constraint("Horizontal", 10),
    Sketcher.Constraint("Equal", 7, 9),
    Sketcher.Constraint("Horizontal", 7, 3, 9, 3),
    Sketcher.Constraint("Equal", 6, 8),
    Sketcher.Constraint("Radius", 5, Q("5.423521 mm")),
    Sketcher.Constraint("DistanceX", -1, 1, 9, 3, Q("14.665798 mm")),
    Sketcher.Constraint("DistanceY", -1, 1, 0, 2, Q("82.7211 mm")),
    Sketcher.Constraint("DistanceY", -1, 1, 5, 1, Q("106.756502 mm")),
    Sketcher.Constraint("DistanceX", 1, 1, 1, 2, Q("97.409374 mm")),
    Sketcher.Constraint("DistanceX", 4, 2, 4, 1, Q("17.341824 mm")),
    Sketcher.Constraint("DistanceY", 0, 2, 0, 1, Q("32.313407 mm")),
    Sketcher.Constraint("DistanceX", 5, 3, -1, 1, Q("34.084219 mm")),
    Sketcher.Constraint("DistanceX", 0, 2, 5, 3, Q("24.329679 mm")),
])
pad8 = body8.newObject("PartDesign::Pad", "Pad007")
pad8.Profile = sketch8
pad8.Length = Q("1 in")
body9 = doc.addObject("PartDesign::Body", "Body008")

sketch9 = body9.newObject("Sketcher::SketchObject", "Sketch008")
sketch9.AttachmentSupport = (doc.getObject("XY_Plane008"), [""])
sketch9.MapMode = "FlatFace"
sketch9.addGeometry([
    Part.LineSegment(App.Vector(-16.7, 104.2, 0), App.Vector(-34.1, 104.2, 0)),
    Part.ArcOfCircle(Part.Circle(App.Vector(-34.1, 101.3, 0), App.Vector(0, 0, 1), 2.9), math.radians(90), math.radians(270)),
    Part.LineSegment(App.Vector(-34.1, 98.4, 0), App.Vector(-16.7, 98.4, 0)),
    Part.ArcOfCircle(Part.Circle(App.Vector(-16.7, 101.3, 0), App.Vector(0, 0, 1), 2.9), math.radians(-90), math.radians(90)),
], False)
sketch9.addConstraint([
    Sketcher.Constraint("Tangent", 0, 2, 1, 1),
    Sketcher.Constraint("Tangent", 1, 2, 2, 1),
    Sketcher.Constraint("Tangent", 2, 2, 3, 1),
    Sketcher.Constraint("Tangent", 3, 2, 0, 1),
    Sketcher.Constraint("Horizontal", 0),
    Sketcher.Constraint("Horizontal", 2),
    Sketcher.Constraint("Radius", 1, Q("2.883521 mm")),
    Sketcher.Constraint("DistanceY", -1, 1, 0, 2, Q("104.216502 mm")),
    Sketcher.Constraint("DistanceX", 0, 2, 0, 1, Q("17.341824 mm")),
    Sketcher.Constraint("DistanceX", 1, 3, -1, 1, Q("34.084219 mm")),
])
pad9 = body9.newObject("PartDesign::Pad", "Pad008")
pad9.Profile = sketch9
pad9.Length = Q("1 in")
body10 = doc.addObject("PartDesign::Body", "Body009")

sketch10 = body10.newObject("Sketcher::SketchObject", "Sketch009")
sketch10.AttachmentSupport = (doc.getObject("XY_Plane009"), [""])
sketch10.MapMode = "FlatFace"
sketch10.addGeometry([
    Part.ArcOfCircle(Part.Circle(App.Vector(14.7, 101.3, 0), App.Vector(0, 0, 1), 2.9), math.radians(-90), math.radians(90)),
    Part.LineSegment(App.Vector(14.7, 104.2, 0), App.Vector(-2.7, 104.2, 0)),
    Part.ArcOfCircle(Part.Circle(App.Vector(-2.7, 101.3, 0), App.Vector(0, 0, 1), 2.9), math.radians(90), math.radians(270)),
    Part.LineSegment(App.Vector(-2.7, 98.4, 0), App.Vector(14.7, 98.4, 0)),
], False)
sketch10.addConstraint([
    Sketcher.Constraint("Tangent", 0, 2, 1, 1),
    Sketcher.Constraint("Tangent", 1, 2, 2, 1),
    Sketcher.Constraint("Tangent", 2, 2, 3, 1),
    Sketcher.Constraint("Tangent", 3, 2, 0, 1),
    Sketcher.Constraint("Horizontal", 1),
    Sketcher.Constraint("Horizontal", 3),
    Sketcher.Constraint("Radius", 0, Q("2.883521 mm")),
    Sketcher.Constraint("DistanceX", -1, 1, 0, 3, Q("14.665798 mm")),
    Sketcher.Constraint("DistanceY", -1, 1, 0, 2, Q("104.216502 mm")),
    Sketcher.Constraint("DistanceX", 1, 2, 1, 1, Q("17.341824 mm")),
])
pad10 = body10.newObject("PartDesign::Pad", "Pad009")
pad10.Profile = sketch10
pad10.Length = Q("1 in")
body11 = doc.addObject("PartDesign::Body", "Body010")

sketch11 = body11.newObject("Sketcher::SketchObject", "Sketch010")
sketch11.AttachmentSupport = (doc.getObject("XY_Plane010"), [""])
sketch11.MapMode = "FlatFace"
sketch11.addGeometry([
    Part.LineSegment(App.Vector(46, 115, 0), App.Vector(46, 61, 0)),
    Part.LineSegment(App.Vector(46, 61, 0), App.Vector(64, 61, 0)),
    Part.LineSegment(App.Vector(64, 61, 0), App.Vector(64, 115, 0)),
    Part.LineSegment(App.Vector(64, 115, 0), App.Vector(46, 115, 0)),
], False)
sketch11.addConstraint([
    Sketcher.Constraint("Coincident", 0, 2, 1, 1),
    Sketcher.Constraint("Coincident", 1, 2, 2, 1),
    Sketcher.Constraint("Coincident", 2, 2, 3, 1),
    Sketcher.Constraint("Coincident", 3, 2, 0, 1),
    Sketcher.Constraint("Vertical", 0),
    Sketcher.Constraint("Horizontal", 1),
    Sketcher.Constraint("Vertical", 2),
    Sketcher.Constraint("Horizontal", 3),
    Sketcher.Constraint("DistanceX", 1, 1, 1, 2, Q("18.443976 mm")),
    Sketcher.Constraint("DistanceY", 0, 2, 0, 1, Q("54.528233 mm")),
    Sketcher.Constraint("DistanceX", -1, 1, 0, 2, Q("45.788812 mm")),
    Sketcher.Constraint("DistanceY", -1, 1, 0, 2, Q("60.506274 mm")),
])
pad11 = body11.newObject("PartDesign::Pad", "Pad010")
pad11.Profile = sketch11
pad11.Length = Q("1 in")
body12 = doc.addObject("PartDesign::Body", "Body011")

sketch12 = body12.newObject("Sketcher::SketchObject", "Sketch011")
sketch12.AttachmentSupport = (doc.getObject("XY_Plane011"), [""])
sketch12.MapMode = "FlatFace"
sketch12.addGeometry([
    Part.LineSegment(App.Vector(83.1, 67.8, 0), App.Vector(83.1, 60.5, 0)),
    Part.LineSegment(App.Vector(83.1, 60.5, 0), App.Vector(125.4, 60.5, 0)),
    Part.LineSegment(App.Vector(125.4, 60.5, 0), App.Vector(133.1, 68.2, 0)),
    Part.LineSegment(App.Vector(133.1, 68.2, 0), App.Vector(133.1, 84.6, 0)),
    Part.LineSegment(App.Vector(133.1, 84.6, 0), App.Vector(102.3, 84.6, 0)),
    Part.LineSegment(App.Vector(102.3, 84.6, 0), App.Vector(94.4, 92.5, 0)),
    Part.LineSegment(App.Vector(94.4, 92.5, 0), App.Vector(94.4, 106.8, 0)),
    Part.LineSegment(App.Vector(94.4, 106.8, 0), App.Vector(133.1, 106.8, 0)),
    Part.LineSegment(App.Vector(133.1, 106.8, 0), App.Vector(133.1, 115, 0)),
    Part.LineSegment(App.Vector(133.1, 115, 0), App.Vector(98.7, 115, 0)),
    Part.LineSegment(App.Vector(98.7, 115, 0), App.Vector(84, 106.8, 0)),
    Part.LineSegment(App.Vector(84, 106.8, 0), App.Vector(84, 90.1, 0)),
    Part.LineSegment(App.Vector(84, 90.1, 0), App.Vector(96.9, 77.2, 0)),
    Part.LineSegment(App.Vector(96.9, 77.2, 0), App.Vector(125.4, 77.2, 0)),
    Part.LineSegment(App.Vector(125.4, 77.2, 0), App.Vector(125.4, 68.2, 0)),
    Part.LineSegment(App.Vector(125.4, 68.2, 0), App.Vector(125, 67.8, 0)),
    Part.LineSegment(App.Vector(125, 67.8, 0), App.Vector(83.1, 67.8, 0)),
], False)
sketch12.addConstraint([
    Sketcher.Constraint("Coincident", 0, 2, 1, 1),
    Sketcher.Constraint("Coincident", 1, 2, 2, 1),
    Sketcher.Constraint("Coincident", 2, 2, 3, 1),
    Sketcher.Constraint("Coincident", 3, 2, 4, 1),
    Sketcher.Constraint("Coincident", 4, 2, 5, 1),
    Sketcher.Constraint("Coincident", 5, 2, 6, 1),
    Sketcher.Constraint("Coincident", 6, 2, 7, 1),
    Sketcher.Constraint("Coincident", 7, 2, 8, 1),
    Sketcher.Constraint("Coincident", 8, 2, 9, 1),
    Sketcher.Constraint("Coincident", 9, 2, 10, 1),
    Sketcher.Constraint("Coincident", 10, 2, 11, 1),
    Sketcher.Constraint("Coincident", 11, 2, 12, 1),
    Sketcher.Constraint("Coincident", 12, 2, 13, 1),
    Sketcher.Constraint("Coincident", 13, 2, 14, 1),
    Sketcher.Constraint("Coincident", 14, 2, 15, 1),
    Sketcher.Constraint("Coincident", 15, 2, 16, 1),
    Sketcher.Constraint("Coincident", 16, 2, 0, 1),
    Sketcher.Constraint("Vertical", 0),
    Sketcher.Constraint("Horizontal", 1),
    Sketcher.Constraint("Vertical", 3),
    Sketcher.Constraint("Horizontal", 4),
    Sketcher.Constraint("Vertical", 6),
    Sketcher.Constraint("Horizontal", 7),
    Sketcher.Constraint("Vertical", 8),
    Sketcher.Constraint("Horizontal", 9),
    Sketcher.Constraint("Vertical", 11),
    Sketcher.Constraint("Horizontal", 13),
    Sketcher.Constraint("Vertical", 14),
    Sketcher.Constraint("Horizontal", 16),
    Sketcher.Constraint("Perpendicular", 2, 5),
    Sketcher.Constraint("Parallel", 5, 12),
    Sketcher.Constraint("Perpendicular", 12, 15),
    Sketcher.Constraint("Horizontal", 7, 2, 10, 2),
    Sketcher.Constraint("Horizontal", 2, 2, 14, 2),
    Sketcher.Constraint("Vertical", 3, 2, 7, 2),
    Sketcher.Constraint("Vertical", 1, 2, 13, 2),
    Sketcher.Constraint("Angle", 2, Q("45 deg")),
    Sketcher.Constraint("DistanceX", 7, 1, 7, 2, Q("38.689088 mm")),
    Sketcher.Constraint("DistanceX", 16, 2, 16, 1, Q("41.89451 mm")),
    Sketcher.Constraint("DistanceY", 3, 1, 3, 2, Q("16.372969 mm")),
    Sketcher.Constraint("DistanceY", 11, 2, 11, 1, Q("16.658952 mm")),
    Sketcher.Constraint("DistanceY", -1, 1, 2, 2, Q("68.210999 mm")),
    Sketcher.Constraint("DistanceY", -1, 1, 6, 2, Q("106.756502 mm")),
    Sketcher.Constraint("Distance", 5, Q("11.215451 mm")),
    Sketcher.Constraint("Distance", 12, Q("18.19982 mm")),
    Sketcher.Constraint("Distance", 15, Q("0.58015 mm")),
    Sketcher.Constraint("DistanceX", 9, 2, 9, 1, Q("34.370676 mm")),
    Sketcher.Constraint("DistanceX", 13, 1, 13, 2, Q("28.508002 mm")),
    Sketcher.Constraint("DistanceY", 0, 2, 0, 1, Q("7.294497 mm")),
    Sketcher.Constraint("DistanceY", 8, 1, 8, 2, Q("8.278005 mm")),
    Sketcher.Constraint("DistanceX", -1, 1, 0, 2, Q("83.066672 mm")),
])
pad12 = body12.newObject("PartDesign::Pad", "Pad011")
pad12.Profile = sketch12
pad12.Length = Q("1 in")
body13 = doc.addObject("PartDesign::Body", "Body012")

sketch13 = body13.newObject("Sketcher::SketchObject", "Sketch012")
sketch13.AttachmentSupport = (doc.getObject("XY_Plane012"), [""])
sketch13.MapMode = "FlatFace"
sketch13.addGeometry([
    Part.LineSegment(App.Vector(142, 115, 0), App.Vector(142, 61, 0)),
    Part.LineSegment(App.Vector(142, 61, 0), App.Vector(152, 61, 0)),
    Part.LineSegment(App.Vector(152, 61, 0), App.Vector(152, 104, 0)),
    Part.LineSegment(App.Vector(152, 104, 0), App.Vector(175, 61, 0)),
    Part.LineSegment(App.Vector(175, 61, 0), App.Vector(185, 61, 0)),
    Part.LineSegment(App.Vector(185, 61, 0), App.Vector(207, 104, 0)),
    Part.LineSegment(App.Vector(207, 104, 0), App.Vector(207, 61, 0)),
    Part.LineSegment(App.Vector(207, 61, 0), App.Vector(217, 61, 0)),
    Part.LineSegment(App.Vector(217, 61, 0), App.Vector(217, 115, 0)),
    Part.LineSegment(App.Vector(217, 115, 0), App.Vector(207, 115, 0)),
    Part.LineSegment(App.Vector(207, 115, 0), App.Vector(180, 74, 0)),
    Part.LineSegment(App.Vector(180, 74, 0), App.Vector(152, 115, 0)),
    Part.LineSegment(App.Vector(152, 115, 0), App.Vector(142, 115, 0)),
], False)
sketch13.addConstraint([
    Sketcher.Constraint("Coincident", 0, 2, 1, 1),
    Sketcher.Constraint("Coincident", 1, 2, 2, 1),
    Sketcher.Constraint("Coincident", 2, 2, 3, 1),
    Sketcher.Constraint("Coincident", 3, 2, 4, 1),
    Sketcher.Constraint("Coincident", 4, 2, 5, 1),
    Sketcher.Constraint("Coincident", 5, 2, 6, 1),
    Sketcher.Constraint("Coincident", 6, 2, 7, 1),
    Sketcher.Constraint("Coincident", 7, 2, 8, 1),
    Sketcher.Constraint("Coincident", 8, 2, 9, 1),
    Sketcher.Constraint("Coincident", 9, 2, 10, 1),
    Sketcher.Constraint("Coincident", 10, 2, 11, 1),
    Sketcher.Constraint("Coincident", 11, 2, 12, 1),
    Sketcher.Constraint("Coincident", 12, 2, 0, 1),
    Sketcher.Constraint("Vertical", 0),
    Sketcher.Constraint("Horizontal", 1),
    Sketcher.Constraint("Vertical", 2),
    Sketcher.Constraint("Horizontal", 4),
    Sketcher.Constraint("Vertical", 6),
    Sketcher.Constraint("Horizontal", 7),
    Sketcher.Constraint("Vertical", 8),
    Sketcher.Constraint("Horizontal", 9),
    Sketcher.Constraint("Horizontal", 12),
    Sketcher.Constraint("Horizontal", 1, 2, 3, 2),
    Sketcher.Constraint("Horizontal", 2, 2, 5, 2),
    Sketcher.Constraint("Horizontal", 4, 2, 6, 2),
    Sketcher.Constraint("Horizontal", 9, 2, 11, 2),
    Sketcher.Constraint("Vertical", 6, 2, 9, 2),
    Sketcher.Constraint("Vertical", 2, 2, 11, 2),
    Sketcher.Constraint("Equal", 1, 7),
    Sketcher.Constraint("Equal", 3, 5),
    Sketcher.Constraint("Equal", 10, 11),
    Sketcher.Constraint("DistanceY", -1, 1, 2, 2, Q("104.216502 mm")),
    Sketcher.Constraint("Distance", 10, Q("49.918762 mm")),
    Sketcher.Constraint("DistanceX", 1, 1, 1, 2, Q("9.668585 mm")),
    Sketcher.Constraint("DistanceX", 4, 1, 4, 2, Q("10.065504 mm")),
    Sketcher.Constraint("DistanceY", 0, 2, 0, 1, Q("54.528233 mm")),
    Sketcher.Constraint("DistanceY", 2, 1, 2, 2, Q("43.710228 mm")),
    Sketcher.Constraint("DistanceX", -1, 1, 1, 2, Q("151.823191 mm")),
    Sketcher.Constraint("DistanceX", -1, 1, 3, 2, Q("174.508171 mm")),
])
pad13 = body13.newObject("PartDesign::Pad", "Pad012")
pad13.Profile = sketch13
pad13.Length = Q("1 in")

doc.recompute()
